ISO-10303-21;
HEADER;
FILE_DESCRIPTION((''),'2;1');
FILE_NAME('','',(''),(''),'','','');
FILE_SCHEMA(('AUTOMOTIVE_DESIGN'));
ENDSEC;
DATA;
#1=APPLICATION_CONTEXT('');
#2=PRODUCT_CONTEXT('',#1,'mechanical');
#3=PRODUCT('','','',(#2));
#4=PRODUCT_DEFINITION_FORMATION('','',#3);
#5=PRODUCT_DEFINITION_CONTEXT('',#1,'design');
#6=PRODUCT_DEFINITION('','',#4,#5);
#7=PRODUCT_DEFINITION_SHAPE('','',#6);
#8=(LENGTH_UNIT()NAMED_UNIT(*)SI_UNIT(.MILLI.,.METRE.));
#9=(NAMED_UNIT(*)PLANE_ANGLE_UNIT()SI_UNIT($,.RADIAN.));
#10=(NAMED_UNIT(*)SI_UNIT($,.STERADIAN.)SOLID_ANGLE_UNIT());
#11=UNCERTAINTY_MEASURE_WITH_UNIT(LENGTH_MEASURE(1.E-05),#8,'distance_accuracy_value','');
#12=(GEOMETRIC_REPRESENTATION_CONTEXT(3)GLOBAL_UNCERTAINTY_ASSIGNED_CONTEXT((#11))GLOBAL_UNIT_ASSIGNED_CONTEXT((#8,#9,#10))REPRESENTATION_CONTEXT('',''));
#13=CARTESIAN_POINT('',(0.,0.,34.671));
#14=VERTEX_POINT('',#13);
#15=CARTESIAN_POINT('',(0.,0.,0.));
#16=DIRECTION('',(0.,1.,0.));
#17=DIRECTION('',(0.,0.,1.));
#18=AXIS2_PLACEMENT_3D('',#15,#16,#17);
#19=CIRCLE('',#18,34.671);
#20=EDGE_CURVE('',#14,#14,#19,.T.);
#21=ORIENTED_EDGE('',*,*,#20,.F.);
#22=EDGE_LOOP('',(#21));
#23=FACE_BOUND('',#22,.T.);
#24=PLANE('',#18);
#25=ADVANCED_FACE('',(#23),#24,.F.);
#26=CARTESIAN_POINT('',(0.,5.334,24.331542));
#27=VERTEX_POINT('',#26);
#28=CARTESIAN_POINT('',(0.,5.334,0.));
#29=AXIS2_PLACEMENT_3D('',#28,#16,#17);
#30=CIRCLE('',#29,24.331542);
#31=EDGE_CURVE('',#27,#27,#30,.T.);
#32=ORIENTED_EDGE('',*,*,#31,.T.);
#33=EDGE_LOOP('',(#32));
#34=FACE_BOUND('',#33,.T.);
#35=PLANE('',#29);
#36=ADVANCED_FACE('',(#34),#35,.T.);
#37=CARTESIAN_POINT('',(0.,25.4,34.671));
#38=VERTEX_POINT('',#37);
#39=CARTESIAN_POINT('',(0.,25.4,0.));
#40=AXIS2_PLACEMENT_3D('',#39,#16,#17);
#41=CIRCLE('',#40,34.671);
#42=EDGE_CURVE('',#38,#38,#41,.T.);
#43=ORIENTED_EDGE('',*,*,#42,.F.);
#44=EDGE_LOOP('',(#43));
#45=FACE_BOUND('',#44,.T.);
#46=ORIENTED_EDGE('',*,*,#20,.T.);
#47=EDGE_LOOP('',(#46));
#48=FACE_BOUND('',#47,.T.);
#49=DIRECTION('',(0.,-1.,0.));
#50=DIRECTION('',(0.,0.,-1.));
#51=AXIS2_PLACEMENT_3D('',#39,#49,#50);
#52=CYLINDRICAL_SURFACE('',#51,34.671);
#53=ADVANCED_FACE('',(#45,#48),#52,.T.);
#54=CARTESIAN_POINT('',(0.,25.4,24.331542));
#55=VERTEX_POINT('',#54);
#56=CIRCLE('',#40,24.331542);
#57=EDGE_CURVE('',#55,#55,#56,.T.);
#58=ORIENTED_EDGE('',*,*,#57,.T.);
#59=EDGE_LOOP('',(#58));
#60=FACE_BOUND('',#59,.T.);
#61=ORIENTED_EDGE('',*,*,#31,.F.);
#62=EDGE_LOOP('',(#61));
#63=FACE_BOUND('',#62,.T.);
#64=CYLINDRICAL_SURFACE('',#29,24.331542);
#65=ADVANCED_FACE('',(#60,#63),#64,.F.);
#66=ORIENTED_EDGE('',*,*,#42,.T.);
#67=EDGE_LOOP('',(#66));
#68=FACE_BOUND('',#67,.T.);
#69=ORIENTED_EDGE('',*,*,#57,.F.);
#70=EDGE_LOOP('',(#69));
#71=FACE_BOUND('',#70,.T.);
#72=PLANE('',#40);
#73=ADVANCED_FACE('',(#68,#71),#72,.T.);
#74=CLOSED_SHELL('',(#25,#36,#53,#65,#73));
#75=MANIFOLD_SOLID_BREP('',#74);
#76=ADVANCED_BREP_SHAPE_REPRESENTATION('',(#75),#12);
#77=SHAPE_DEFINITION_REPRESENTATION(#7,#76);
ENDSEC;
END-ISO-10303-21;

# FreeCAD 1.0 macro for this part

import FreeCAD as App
import Part
import Sketcher

V = App.Vector
Q = App.Units.Quantity

doc = App.newDocument("Part")
params = doc.addObject("Spreadsheet::Sheet", "Params")
for row, (alias, value) in enumerate([
    ("sketch1_diameter", "2.73 in"),
    ("pad1_length", "1 in"),
    ("pocket1_length", "0.79 in"),
], start=1):
    params.set(f"A{row}", alias)
    params.set(f"B{row}", "=" + value)
    params.setAlias(f"B{row}", alias)

body = doc.addObject("PartDesign::Body", "Body")

# Sketch on XZ plane
sketch1 = doc.addObject("Sketcher::SketchObject", "Sketch")
body.addObject(sketch1)
sketch1.AttachmentSupport = (doc.XZ_Plane, [""])
sketch1.MapMode = "FlatFace"
sketch1.addGeometry(Part.Circle(V(0, 0, 0), V(0, 0, 1), 34.671), False)
sketch1.addConstraint([
    Sketcher.Constraint("Coincident", 0, 3, -1, 1),
    Sketcher.Constraint("Diameter", 0, Q("2.73 in")),
])
sketch1.setExpression("Constraints[1]", "Params.sketch1_diameter")
pad1 = doc.addObject("PartDesign::Pad", "Pad")
body.addObject(pad1)
pad1.Profile = sketch1
pad1.setExpression("Length", "Params.pad1_length")
pad1.Reversed = True

# Sketch on XZ plane
sketch2 = doc.addObject("Sketcher::SketchObject", "Sketch001")
body.addObject(sketch2)
sketch2.AttachmentSupport = (doc.XZ_Plane, [""])
sketch2.MapMode = "FlatFace"
sketch2.AttachmentOffset = App.Placement(V(0, 0, -1 * 25.4), App.Rotation())
sketch2.addGeometry(Part.Circle(V(0, 0, 0), V(0, 0, 1), 24.331542), False)
sketch2.addConstraint([
    Sketcher.Constraint("Coincident", 0, 3, -1, 1),
    Sketcher.Constraint("Diameter", 0, Q("48.663083 mm")),
])
pocket1 = doc.addObject("PartDesign::Pocket", "Pocket")
body.addObject(pocket1)
pocket1.Profile = sketch2
pocket1.setExpression("Length", "Params.pocket1_length")
pocket1.Reversed = True

doc.recompute()
